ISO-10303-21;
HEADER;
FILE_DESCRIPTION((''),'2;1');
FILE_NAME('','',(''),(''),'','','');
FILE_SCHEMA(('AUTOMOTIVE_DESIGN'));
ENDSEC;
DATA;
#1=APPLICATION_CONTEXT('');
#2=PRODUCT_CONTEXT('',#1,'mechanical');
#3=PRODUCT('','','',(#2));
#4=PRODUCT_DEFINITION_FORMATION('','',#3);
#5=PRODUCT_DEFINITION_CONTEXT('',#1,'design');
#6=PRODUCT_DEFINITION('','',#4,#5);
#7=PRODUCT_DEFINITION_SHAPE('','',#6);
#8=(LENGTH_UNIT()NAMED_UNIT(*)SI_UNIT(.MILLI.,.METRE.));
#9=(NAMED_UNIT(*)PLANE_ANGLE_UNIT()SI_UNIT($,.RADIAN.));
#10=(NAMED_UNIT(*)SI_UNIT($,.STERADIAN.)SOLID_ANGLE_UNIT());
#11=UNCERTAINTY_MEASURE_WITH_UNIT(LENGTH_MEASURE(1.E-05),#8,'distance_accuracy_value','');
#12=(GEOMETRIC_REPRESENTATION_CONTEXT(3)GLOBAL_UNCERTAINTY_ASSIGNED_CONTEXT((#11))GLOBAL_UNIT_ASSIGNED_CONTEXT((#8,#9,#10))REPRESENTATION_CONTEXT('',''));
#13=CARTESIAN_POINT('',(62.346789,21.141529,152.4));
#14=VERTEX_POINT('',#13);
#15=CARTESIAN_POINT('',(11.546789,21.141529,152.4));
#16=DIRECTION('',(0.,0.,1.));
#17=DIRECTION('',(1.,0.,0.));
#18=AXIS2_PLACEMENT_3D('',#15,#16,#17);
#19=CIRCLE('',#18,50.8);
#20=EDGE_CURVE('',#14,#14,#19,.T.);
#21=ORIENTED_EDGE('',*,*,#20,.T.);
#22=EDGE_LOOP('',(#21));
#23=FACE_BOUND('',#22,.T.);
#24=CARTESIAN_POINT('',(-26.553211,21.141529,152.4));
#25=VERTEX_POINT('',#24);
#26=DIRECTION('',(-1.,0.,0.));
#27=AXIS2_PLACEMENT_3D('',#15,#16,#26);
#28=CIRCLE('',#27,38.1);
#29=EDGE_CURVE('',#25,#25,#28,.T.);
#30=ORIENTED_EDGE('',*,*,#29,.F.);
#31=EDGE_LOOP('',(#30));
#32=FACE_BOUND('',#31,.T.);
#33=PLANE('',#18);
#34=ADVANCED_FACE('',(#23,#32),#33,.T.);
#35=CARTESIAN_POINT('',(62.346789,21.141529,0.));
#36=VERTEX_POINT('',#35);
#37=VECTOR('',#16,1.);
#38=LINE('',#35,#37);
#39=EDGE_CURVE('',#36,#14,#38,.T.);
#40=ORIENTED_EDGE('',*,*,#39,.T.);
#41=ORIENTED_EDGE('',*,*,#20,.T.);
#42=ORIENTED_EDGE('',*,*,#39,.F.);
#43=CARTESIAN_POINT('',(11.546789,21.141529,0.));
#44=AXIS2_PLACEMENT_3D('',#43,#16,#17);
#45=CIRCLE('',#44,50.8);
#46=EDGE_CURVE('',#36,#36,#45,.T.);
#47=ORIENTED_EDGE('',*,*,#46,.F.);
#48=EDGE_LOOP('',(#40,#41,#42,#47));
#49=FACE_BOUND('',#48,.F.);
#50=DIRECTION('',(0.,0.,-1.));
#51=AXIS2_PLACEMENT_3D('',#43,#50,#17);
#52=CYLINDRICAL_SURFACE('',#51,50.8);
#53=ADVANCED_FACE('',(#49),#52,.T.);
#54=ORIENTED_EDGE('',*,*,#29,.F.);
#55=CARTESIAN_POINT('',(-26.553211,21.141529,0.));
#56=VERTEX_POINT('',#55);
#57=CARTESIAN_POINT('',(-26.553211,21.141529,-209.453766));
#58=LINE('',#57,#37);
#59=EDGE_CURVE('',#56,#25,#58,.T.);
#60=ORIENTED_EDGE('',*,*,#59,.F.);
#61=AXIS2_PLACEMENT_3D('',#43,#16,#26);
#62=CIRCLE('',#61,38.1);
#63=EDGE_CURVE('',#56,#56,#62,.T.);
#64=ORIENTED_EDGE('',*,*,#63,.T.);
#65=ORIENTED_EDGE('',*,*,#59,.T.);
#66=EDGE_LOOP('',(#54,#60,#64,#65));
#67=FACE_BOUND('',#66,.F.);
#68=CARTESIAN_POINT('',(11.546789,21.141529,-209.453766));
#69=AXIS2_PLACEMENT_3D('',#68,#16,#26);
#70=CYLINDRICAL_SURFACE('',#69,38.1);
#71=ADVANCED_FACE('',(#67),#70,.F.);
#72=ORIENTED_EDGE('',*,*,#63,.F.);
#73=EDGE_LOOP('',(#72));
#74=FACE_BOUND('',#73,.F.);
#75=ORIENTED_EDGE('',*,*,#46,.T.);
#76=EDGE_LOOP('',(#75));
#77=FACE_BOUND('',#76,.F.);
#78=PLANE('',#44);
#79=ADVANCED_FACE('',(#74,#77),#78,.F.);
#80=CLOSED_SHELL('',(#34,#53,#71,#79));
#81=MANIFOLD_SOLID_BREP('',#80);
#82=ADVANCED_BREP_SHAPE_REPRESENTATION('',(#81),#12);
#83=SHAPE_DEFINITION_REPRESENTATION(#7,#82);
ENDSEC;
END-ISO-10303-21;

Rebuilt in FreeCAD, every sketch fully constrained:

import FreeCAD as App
import Part
import Sketcher
from FreeCAD import Vector
Q = App.Units.Quantity

doc = App.newDocument("Part")
body = doc.addObject("PartDesign::Body", "Body")

sketch1 = body.newObject("Sketcher::SketchObject", "Sketch")
sketch1.AttachmentSupport = (doc.getObject("XY_Plane"), [""])
sketch1.MapMode = "FlatFace"
sketch1.addGeometry(Part.Circle(Vector(12, 21, 0), Vector(0, 0, 1), 51), False)
sketch1.addConstraint([
    Sketcher.Constraint("Diameter", 0, Q("4 in")),
    Sketcher.Constraint("DistanceX", -1, 1, 0, 3, Q("11.546789 mm")),
    Sketcher.Constraint("DistanceY", -1, 1, 0, 3, Q("21.141529 mm")),
])
pad1 = body.newObject("PartDesign::Pad", "Pad")
pad1.Profile = sketch1
pad1.Length = Q("6 in")

sketch2 = body.newObject("Sketcher::SketchObject", "Sketch001")
sketch2.AttachmentSupport = (doc.getObject("XY_Plane"), [""])
sketch2.MapMode = "FlatFace"
sketch2.addGeometry(Part.Circle(Vector(12, 21, 0), Vector(0, 0, 1), 38), False)
sketch2.addConstraint([
    Sketcher.Constraint("Diameter", 0, Q("3 in")),
    Sketcher.Constraint("DistanceX", -1, 1, 0, 3, Q("11.546789 mm")),
    Sketcher.Constraint("DistanceY", -1, 1, 0, 3, Q("21.141529 mm")),
])
doc.recompute()
hole = body.newObject("PartDesign::Hole", "Hole")
hole.Profile = sketch2
hole.ThreadType = "None"
hole.Diameter = Q("3 in")
hole.DepthType = "ThroughAll"
hole.Reversed = True

doc.recompute()
